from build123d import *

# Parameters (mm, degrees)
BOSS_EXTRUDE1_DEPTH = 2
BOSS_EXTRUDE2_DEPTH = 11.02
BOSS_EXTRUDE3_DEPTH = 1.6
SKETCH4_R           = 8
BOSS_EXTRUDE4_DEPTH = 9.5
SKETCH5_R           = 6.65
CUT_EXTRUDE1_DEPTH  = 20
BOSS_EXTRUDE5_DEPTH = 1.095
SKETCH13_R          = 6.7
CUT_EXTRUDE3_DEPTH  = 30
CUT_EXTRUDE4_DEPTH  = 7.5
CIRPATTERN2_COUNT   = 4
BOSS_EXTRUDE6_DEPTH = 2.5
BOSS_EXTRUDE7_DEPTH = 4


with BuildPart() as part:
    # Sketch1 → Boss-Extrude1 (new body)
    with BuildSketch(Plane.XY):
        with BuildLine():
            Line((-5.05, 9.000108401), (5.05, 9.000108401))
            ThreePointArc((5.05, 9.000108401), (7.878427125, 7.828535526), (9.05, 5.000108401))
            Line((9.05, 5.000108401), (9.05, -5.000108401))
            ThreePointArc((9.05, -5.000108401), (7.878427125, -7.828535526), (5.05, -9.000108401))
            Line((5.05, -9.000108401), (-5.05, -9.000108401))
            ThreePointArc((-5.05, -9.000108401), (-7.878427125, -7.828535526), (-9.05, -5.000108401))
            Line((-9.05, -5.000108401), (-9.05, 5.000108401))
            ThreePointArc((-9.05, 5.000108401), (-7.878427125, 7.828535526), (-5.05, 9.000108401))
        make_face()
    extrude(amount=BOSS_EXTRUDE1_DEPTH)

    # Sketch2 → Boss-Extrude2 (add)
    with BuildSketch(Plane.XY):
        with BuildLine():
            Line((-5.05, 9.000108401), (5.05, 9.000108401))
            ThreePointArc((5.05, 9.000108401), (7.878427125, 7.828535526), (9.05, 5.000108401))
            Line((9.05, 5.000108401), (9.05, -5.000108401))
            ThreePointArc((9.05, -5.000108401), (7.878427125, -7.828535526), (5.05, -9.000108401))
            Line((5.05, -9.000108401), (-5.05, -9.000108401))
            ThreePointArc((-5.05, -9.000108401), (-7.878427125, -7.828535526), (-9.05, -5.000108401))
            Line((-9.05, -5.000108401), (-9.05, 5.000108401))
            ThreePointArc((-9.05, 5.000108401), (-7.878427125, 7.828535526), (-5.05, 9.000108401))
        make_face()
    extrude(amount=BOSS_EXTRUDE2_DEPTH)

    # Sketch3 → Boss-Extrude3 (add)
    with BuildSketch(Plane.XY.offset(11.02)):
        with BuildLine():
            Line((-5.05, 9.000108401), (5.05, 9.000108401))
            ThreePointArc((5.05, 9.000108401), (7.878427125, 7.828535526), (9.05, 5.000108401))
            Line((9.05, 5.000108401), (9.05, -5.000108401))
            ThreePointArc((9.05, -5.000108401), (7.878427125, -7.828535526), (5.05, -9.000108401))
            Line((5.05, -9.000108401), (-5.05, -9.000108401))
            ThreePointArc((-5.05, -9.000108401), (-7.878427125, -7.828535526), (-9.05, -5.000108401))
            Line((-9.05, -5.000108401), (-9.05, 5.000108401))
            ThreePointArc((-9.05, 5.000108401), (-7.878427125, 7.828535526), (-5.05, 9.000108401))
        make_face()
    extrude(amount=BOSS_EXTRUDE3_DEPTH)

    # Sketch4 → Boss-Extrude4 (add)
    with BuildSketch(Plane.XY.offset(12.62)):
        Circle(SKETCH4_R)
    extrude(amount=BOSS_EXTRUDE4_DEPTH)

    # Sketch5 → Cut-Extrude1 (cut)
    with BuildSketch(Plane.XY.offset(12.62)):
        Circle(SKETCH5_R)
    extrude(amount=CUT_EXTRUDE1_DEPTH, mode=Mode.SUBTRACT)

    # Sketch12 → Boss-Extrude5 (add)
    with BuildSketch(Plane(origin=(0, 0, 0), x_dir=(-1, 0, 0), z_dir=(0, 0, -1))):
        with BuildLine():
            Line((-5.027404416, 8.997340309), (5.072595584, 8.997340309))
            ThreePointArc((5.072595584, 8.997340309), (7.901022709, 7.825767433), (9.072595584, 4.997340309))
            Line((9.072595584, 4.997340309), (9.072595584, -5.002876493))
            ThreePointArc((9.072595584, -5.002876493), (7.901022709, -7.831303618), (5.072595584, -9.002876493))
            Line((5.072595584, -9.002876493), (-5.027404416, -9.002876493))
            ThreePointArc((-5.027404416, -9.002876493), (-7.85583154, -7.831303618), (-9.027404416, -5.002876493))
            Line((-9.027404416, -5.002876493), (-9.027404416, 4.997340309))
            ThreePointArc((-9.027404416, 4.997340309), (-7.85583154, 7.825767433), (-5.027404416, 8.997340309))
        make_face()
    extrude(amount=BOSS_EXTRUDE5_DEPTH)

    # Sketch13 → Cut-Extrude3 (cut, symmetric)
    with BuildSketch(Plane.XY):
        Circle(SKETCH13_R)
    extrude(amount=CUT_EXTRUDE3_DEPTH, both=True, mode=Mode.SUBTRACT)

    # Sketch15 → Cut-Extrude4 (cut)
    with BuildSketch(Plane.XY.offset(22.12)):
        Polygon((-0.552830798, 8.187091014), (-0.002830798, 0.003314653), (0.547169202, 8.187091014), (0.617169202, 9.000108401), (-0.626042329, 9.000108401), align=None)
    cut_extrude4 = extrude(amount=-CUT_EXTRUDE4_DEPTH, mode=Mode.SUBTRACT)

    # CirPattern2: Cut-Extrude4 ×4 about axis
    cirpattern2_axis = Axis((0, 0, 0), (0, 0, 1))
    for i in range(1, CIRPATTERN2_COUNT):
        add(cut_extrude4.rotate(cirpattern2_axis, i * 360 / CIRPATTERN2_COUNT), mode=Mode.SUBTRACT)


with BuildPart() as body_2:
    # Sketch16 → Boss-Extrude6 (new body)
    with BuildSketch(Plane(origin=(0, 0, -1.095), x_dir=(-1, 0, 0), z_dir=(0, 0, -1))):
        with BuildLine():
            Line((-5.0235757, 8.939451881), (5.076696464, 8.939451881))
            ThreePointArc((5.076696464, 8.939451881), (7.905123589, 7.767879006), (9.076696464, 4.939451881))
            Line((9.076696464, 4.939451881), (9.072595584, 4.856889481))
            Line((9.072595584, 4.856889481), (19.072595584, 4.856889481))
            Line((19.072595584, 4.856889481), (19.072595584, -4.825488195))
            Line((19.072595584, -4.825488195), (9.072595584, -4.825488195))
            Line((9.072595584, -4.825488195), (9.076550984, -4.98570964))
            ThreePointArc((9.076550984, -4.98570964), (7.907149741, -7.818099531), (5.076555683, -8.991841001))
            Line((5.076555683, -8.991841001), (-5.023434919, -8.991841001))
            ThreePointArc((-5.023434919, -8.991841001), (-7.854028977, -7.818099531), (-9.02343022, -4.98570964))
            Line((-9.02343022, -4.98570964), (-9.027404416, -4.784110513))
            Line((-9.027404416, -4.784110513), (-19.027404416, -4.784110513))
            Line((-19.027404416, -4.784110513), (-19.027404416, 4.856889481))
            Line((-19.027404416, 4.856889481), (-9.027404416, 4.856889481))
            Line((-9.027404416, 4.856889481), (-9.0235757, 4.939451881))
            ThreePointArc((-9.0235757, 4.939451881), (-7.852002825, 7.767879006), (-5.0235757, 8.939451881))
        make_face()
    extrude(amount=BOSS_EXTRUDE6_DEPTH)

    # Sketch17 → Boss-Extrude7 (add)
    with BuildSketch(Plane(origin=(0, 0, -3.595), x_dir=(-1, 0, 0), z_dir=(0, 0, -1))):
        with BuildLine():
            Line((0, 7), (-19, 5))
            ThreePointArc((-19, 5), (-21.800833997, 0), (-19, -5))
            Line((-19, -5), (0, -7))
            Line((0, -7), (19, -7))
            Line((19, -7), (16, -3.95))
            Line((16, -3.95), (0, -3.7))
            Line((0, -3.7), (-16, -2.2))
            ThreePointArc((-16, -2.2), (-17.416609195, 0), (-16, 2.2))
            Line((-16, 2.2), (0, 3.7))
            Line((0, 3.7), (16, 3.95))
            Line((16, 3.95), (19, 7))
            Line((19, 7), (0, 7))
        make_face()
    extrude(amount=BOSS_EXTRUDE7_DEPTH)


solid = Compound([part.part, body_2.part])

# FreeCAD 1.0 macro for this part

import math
import FreeCAD as App
import Part
import Sketcher

V = App.Vector


def add_polygon(sketch, points):
    """Adds a closed chain of lines whose ends are joined by coincident constraints."""
    first, n = sketch.GeometryCount, len(points)
    for a, b in zip(points, points[1:] + points[:1]):
        sketch.addGeometry(Part.LineSegment(App.Vector(*a, 0), App.Vector(*b, 0)), False)
    for i in range(n):
        sketch.addConstraint(Sketcher.Constraint("Coincident", first + i, 2, first + (i + 1) % n, 1))

doc = App.newDocument("Part")
body = doc.addObject("PartDesign::Body", "Body")

# Sketch on XY plane
sketch1 = body.newObject("Sketcher::SketchObject", "Sketch")
sketch1.AttachmentSupport = (doc.getObject("XY_Plane"), [""])
sketch1.MapMode = "FlatFace"
sketch1.addGeometry([
    Part.LineSegment(V(5, 9, 0), V(-5, 9, 0)),  # 0
    Part.ArcOfCircle(Part.Circle(V(-5.1, 5, 0), V(0, 0, 1), 4), math.radians(90), math.radians(180)),  # 1
    Part.LineSegment(V(-9.1, 5, 0), V(-9.1, -5, 0)),  # 2
    Part.ArcOfCircle(Part.Circle(V(-5.1, -5, 0), V(0, 0, 1), 4), math.radians(180), math.radians(270)),  # 3
    Part.LineSegment(V(-5, -9, 0), V(5, -9, 0)),  # 4
    Part.ArcOfCircle(Part.Circle(V(5.1, -5, 0), V(0, 0, 1), 4), math.radians(-90), math.radians(0)),  # 5
    Part.LineSegment(V(9.1, -5, 0), V(9.1, 5, 0)),  # 6
    Part.ArcOfCircle(Part.Circle(V(5.1, 5, 0), V(0, 0, 1), 4), math.radians(0), math.radians(90)),  # 7
], False)
sketch1.addConstraint([
    Sketcher.Constraint("Tangent", 0, 2, 1, 1),
    Sketcher.Constraint("Tangent", 1, 2, 2, 1),
    Sketcher.Constraint("Tangent", 2, 2, 3, 1),
    Sketcher.Constraint("Tangent", 3, 2, 4, 1),
    Sketcher.Constraint("Tangent", 4, 2, 5, 1),
    Sketcher.Constraint("Tangent", 5, 2, 6, 1),
    Sketcher.Constraint("Tangent", 6, 2, 7, 1),
    Sketcher.Constraint("Tangent", 7, 2, 0, 1),
    Sketcher.Constraint("Horizontal", 0),
    Sketcher.Constraint("Vertical", 2),
    Sketcher.Constraint("Horizontal", 4),
    Sketcher.Constraint("Vertical", 6),
    Sketcher.Constraint("Equal", 1, 3),
    Sketcher.Constraint("Equal", 3, 5),
    Sketcher.Constraint("Equal", 5, 7),
    Sketcher.Constraint("Symmetric", 1, 3, 5, 3, -1, 1),
    Sketcher.Constraint("Radius", 1, 4.0),
    Sketcher.Constraint("DistanceX", 0, 2, 0, 1, 10.1),
    Sketcher.Constraint("DistanceY", 2, 2, 2, 1, 10.000217),
])
pad1 = body.newObject("PartDesign::Pad", "Pad")
pad1.Profile = sketch1
pad1.Length = 2

# Sketch on XY plane
sketch2 = body.newObject("Sketcher::SketchObject", "Sketch001")
sketch2.AttachmentSupport = (doc.getObject("XY_Plane"), [""])
sketch2.MapMode = "FlatFace"
sketch2.addGeometry([
    Part.LineSegment(V(5, 9, 0), V(-5, 9, 0)),  # 0
    Part.ArcOfCircle(Part.Circle(V(-5.1, 5, 0), V(0, 0, 1), 4), math.radians(90), math.radians(180)),  # 1
    Part.LineSegment(V(-9.1, 5, 0), V(-9.1, -5, 0)),  # 2
    Part.ArcOfCircle(Part.Circle(V(-5.1, -5, 0), V(0, 0, 1), 4), math.radians(180), math.radians(270)),  # 3
    Part.LineSegment(V(-5, -9, 0), V(5, -9, 0)),  # 4
    Part.ArcOfCircle(Part.Circle(V(5.1, -5, 0), V(0, 0, 1), 4), math.radians(-90), math.radians(0)),  # 5
    Part.LineSegment(V(9.1, -5, 0), V(9.1, 5, 0)),  # 6
    Part.ArcOfCircle(Part.Circle(V(5.1, 5, 0), V(0, 0, 1), 4), math.radians(0), math.radians(90)),  # 7
], False)
sketch2.addConstraint([
    Sketcher.Constraint("Tangent", 0, 2, 1, 1),
    Sketcher.Constraint("Tangent", 1, 2, 2, 1),
    Sketcher.Constraint("Tangent", 2, 2, 3, 1),
    Sketcher.Constraint("Tangent", 3, 2, 4, 1),
    Sketcher.Constraint("Tangent", 4, 2, 5, 1),
    Sketcher.Constraint("Tangent", 5, 2, 6, 1),
    Sketcher.Constraint("Tangent", 6, 2, 7, 1),
    Sketcher.Constraint("Tangent", 7, 2, 0, 1),
    Sketcher.Constraint("Horizontal", 0),
    Sketcher.Constraint("Vertical", 2),
    Sketcher.Constraint("Horizontal", 4),
    Sketcher.Constraint("Vertical", 6),
    Sketcher.Constraint("Equal", 1, 3),
    Sketcher.Constraint("Equal", 3, 5),
    Sketcher.Constraint("Equal", 5, 7),
    Sketcher.Constraint("Symmetric", 1, 3, 5, 3, -1, 1),
    Sketcher.Constraint("Radius", 1, 4.0),
    Sketcher.Constraint("DistanceX", 0, 2, 0, 1, 10.1),
    Sketcher.Constraint("DistanceY", 2, 2, 2, 1, 10.000217),
])
pad2 = body.newObject("PartDesign::Pad", "Pad001")
pad2.Profile = sketch2
pad2.Length = 11.02

# Sketch on XY plane
sketch3 = body.newObject("Sketcher::SketchObject", "Sketch002")
sketch3.AttachmentSupport = (doc.getObject("XY_Plane"), [""])
sketch3.MapMode = "FlatFace"
sketch3.AttachmentOffset = App.Placement(V(0, 0, 11.02), App.Rotation())
sketch3.addGeometry([
    Part.LineSegment(V(5, 9, 0), V(-5, 9, 0)),  # 0
    Part.ArcOfCircle(Part.Circle(V(-5.1, 5, 0), V(0, 0, 1), 4), math.radians(90), math.radians(180)),  # 1
    Part.LineSegment(V(-9.1, 5, 0), V(-9.1, -5, 0)),  # 2
    Part.ArcOfCircle(Part.Circle(V(-5.1, -5, 0), V(0, 0, 1), 4), math.radians(180), math.radians(270)),  # 3
    Part.LineSegment(V(-5, -9, 0), V(5, -9, 0)),  # 4
    Part.ArcOfCircle(Part.Circle(V(5.1, -5, 0), V(0, 0, 1), 4), math.radians(-90), math.radians(0)),  # 5
    Part.LineSegment(V(9.1, -5, 0), V(9.1, 5, 0)),  # 6
    Part.ArcOfCircle(Part.Circle(V(5.1, 5, 0), V(0, 0, 1), 4), math.radians(0), math.radians(90)),  # 7
], False)
sketch3.addConstraint([
    Sketcher.Constraint("Tangent", 0, 2, 1, 1),
    Sketcher.Constraint("Tangent", 1, 2, 2, 1),
    Sketcher.Constraint("Tangent", 2, 2, 3, 1),
    Sketcher.Constraint("Tangent", 3, 2, 4, 1),
    Sketcher.Constraint("Tangent", 4, 2, 5, 1),
    Sketcher.Constraint("Tangent", 5, 2, 6, 1),
    Sketcher.Constraint("Tangent", 6, 2, 7, 1),
    Sketcher.Constraint("Tangent", 7, 2, 0, 1),
    Sketcher.Constraint("Horizontal", 0),
    Sketcher.Constraint("Vertical", 2),
    Sketcher.Constraint("Horizontal", 4),
    Sketcher.Constraint("Vertical", 6),
    Sketcher.Constraint("Equal", 1, 3),
    Sketcher.Constraint("Equal", 3, 5),
    Sketcher.Constraint("Equal", 5, 7),
    Sketcher.Constraint("Symmetric", 1, 3, 5, 3, -1, 1),
    Sketcher.Constraint("Radius", 1, 4.0),
    Sketcher.Constraint("DistanceX", 0, 2, 0, 1, 10.1),
    Sketcher.Constraint("DistanceY", 2, 2, 2, 1, 10.000217),
])
pad3 = body.newObject("PartDesign::Pad", "Pad002")
pad3.Profile = sketch3
pad3.Length = 1.6

# Sketch on XY plane
sketch4 = body.newObject("Sketcher::SketchObject", "Sketch003")
sketch4.AttachmentSupport = (doc.getObject("XY_Plane"), [""])
sketch4.MapMode = "FlatFace"
sketch4.AttachmentOffset = App.Placement(V(0, 0, 12.62), App.Rotation())
sketch4.addGeometry(Part.Circle(V(0, 0, 0), V(0, 0, 1), 8), False)
sketch4.addConstraint([
    Sketcher.Constraint("Coincident", 0, 3, -1, 1),
    Sketcher.Constraint("Diameter", 0, 16.0),
])
pad4 = body.newObject("PartDesign::Pad", "Pad003")
pad4.Profile = sketch4
pad4.Length = 9.5

# Sketch on XY plane
sketch5 = body.newObject("Sketcher::SketchObject", "Sketch004")
sketch5.AttachmentSupport = (doc.getObject("XY_Plane"), [""])
sketch5.MapMode = "FlatFace"
sketch5.AttachmentOffset = App.Placement(V(0, 0, 12.62), App.Rotation())
sketch5.addGeometry(Part.Circle(V(0, 0, 0), V(0, 0, 1), 7), False)
sketch5.addConstraint([
    Sketcher.Constraint("Coincident", 0, 3, -1, 1),
    Sketcher.Constraint("Diameter", 0, 13.3),
])
pocket1 = body.newObject("PartDesign::Pocket", "Pocket")
pocket1.Profile = sketch5
pocket1.Length = 20
pocket1.Reversed = True

# Sketch on XY plane
sketch6 = body.newObject("Sketcher::SketchObject", "Sketch005")
sketch6.AttachmentSupport = (doc.getObject("XY_Plane"), [""])
sketch6.MapMode = "FlatFace"
sketch6.addGeometry([
    Part.LineSegment(V(-5.1, 9, 0), V(5, 9, 0)),  # 0
    Part.ArcOfCircle(Part.Circle(V(5, 5, 0), V(0, 0, 1), 4), math.radians(0), math.radians(90)),  # 1
    Part.LineSegment(V(9, 5, 0), V(9, -5, 0)),  # 2
    Part.ArcOfCircle(Part.Circle(V(5, -5, 0), V(0, 0, 1), 4), math.radians(-90), math.radians(0)),  # 3
    Part.LineSegment(V(5, -9, 0), V(-5.1, -9, 0)),  # 4
    Part.ArcOfCircle(Part.Circle(V(-5.1, -5, 0), V(0, 0, 1), 4), math.radians(180), math.radians(270)),  # 5
    Part.LineSegment(V(-9.1, -5, 0), V(-9.1, 5, 0)),  # 6
    Part.ArcOfCircle(Part.Circle(V(-5.1, 5, 0), V(0, 0, 1), 4), math.radians(90), math.radians(180)),  # 7
], False)
sketch6.addConstraint([
    Sketcher.Constraint("Tangent", 0, 2, 1, 2),
    Sketcher.Constraint("Tangent", 1, 1, 2, 1),
    Sketcher.Constraint("Tangent", 2, 2, 3, 2),
    Sketcher.Constraint("Tangent", 3, 1, 4, 1),
    Sketcher.Constraint("Tangent", 4, 2, 5, 2),
    Sketcher.Constraint("Tangent", 5, 1, 6, 1),
    Sketcher.Constraint("Tangent", 6, 2, 7, 2),
    Sketcher.Constraint("Tangent", 7, 1, 0, 1),
    Sketcher.Constraint("Horizontal", 0),
    Sketcher.Constraint("Vertical", 2),
    Sketcher.Constraint("Horizontal", 4),
    Sketcher.Constraint("Vertical", 6),
    Sketcher.Constraint("Equal", 1, 3),
    Sketcher.Constraint("Equal", 3, 5),
    Sketcher.Constraint("Equal", 5, 7),
    Sketcher.Constraint("Radius", 1, 4.0),
    Sketcher.Constraint("DistanceX", 0, 1, 0, 2, 10.1),
    Sketcher.Constraint("DistanceY", 2, 2, 2, 1, 10.000217),
    Sketcher.Constraint("DistanceY", -1, 1, 1, 3, 4.99734),
    Sketcher.Constraint("DistanceX", -1, 1, 1, 3, 5.027404),
])
pad5 = body.newObject("PartDesign::Pad", "Pad004")
pad5.Profile = sketch6
pad5.Length = 1.095
pad5.Reversed = True

# Sketch on XY plane
sketch7 = body.newObject("Sketcher::SketchObject", "Sketch006")
sketch7.AttachmentSupport = (doc.getObject("XY_Plane"), [""])
sketch7.MapMode = "FlatFace"
sketch7.addGeometry(Part.Circle(V(0, 0, 0), V(0, 0, 1), 7), False)
sketch7.addConstraint([
    Sketcher.Constraint("Coincident", 0, 3, -1, 1),
    Sketcher.Constraint("Diameter", 0, 13.4),
])
pocket2 = body.newObject("PartDesign::Pocket", "Pocket001")
pocket2.Profile = sketch7
pocket2.Length = 60
pocket2.Midplane = True

# Sketch on XY plane
sketch8 = body.newObject("Sketcher::SketchObject", "Sketch007")
sketch8.AttachmentSupport = (doc.getObject("XY_Plane"), [""])
sketch8.MapMode = "FlatFace"
sketch8.AttachmentOffset = App.Placement(V(0, 0, 22.12), App.Rotation())
add_polygon(sketch8, [(-0.6, 8.2), (0, 0), (0.5, 8.2), (0.6, 9), (-0.6, 9)])  # lines 0-4
sketch8.addConstraint([
    Sketcher.Constraint("Horizontal", 3),
    Sketcher.Constraint("Horizontal", 1, 2, 4, 2),
    Sketcher.Constraint("Equal", 0, 1),
    Sketcher.Constraint("DistanceX", 4, 2, 1, 2, 1.1),
    Sketcher.Constraint("DistanceX", 1, 2, 2, 2, 0.07),
    Sketcher.Constraint("DistanceX", 3, 2, 3, 1, 1.243212),
    Sketcher.Constraint("DistanceX", 0, 2, -1, 1, 0.002831),
    Sketcher.Constraint("DistanceY", -1, 1, 1, 2, 8.187091),
    Sketcher.Constraint("DistanceY", -1, 1, 2, 2, 9.000108),
    Sketcher.Constraint("Distance", 0, 8.202237),
])
pocket3 = body.newObject("PartDesign::Pocket", "Pocket002")
pocket3.Profile = sketch8
pocket3.Length = 7.5
doc.recompute()

polarpattern = body.newObject("PartDesign::PolarPattern", "PolarPattern")
polarpattern.Originals = [pocket3]
polarpattern.Axis = (doc.getObject("Z_Axis"), [""])
polarpattern.Angle = 360
polarpattern.Occurrences = 4
body.Tip = polarpattern
body2 = doc.addObject("PartDesign::Body", "Body001")

# Sketch on XY plane
sketch9 = body2.newObject("Sketcher::SketchObject", "Sketch008")
sketch9.AttachmentSupport = (doc.getObject("XY_Plane001"), [""])
sketch9.MapMode = "FlatFace"
sketch9.AttachmentOffset = App.Placement(V(0, 0, -1.095), App.Rotation())
sketch9.addGeometry([
    Part.LineSegment(V(-5.08, 8.94, 0), V(5.02, 8.94, 0)),  # 0
    Part.ArcOfCircle(Part.Circle(V(5.02, 4.94, 0), V(0, 0, 1), 4), math.radians(0), math.radians(90)),  # 1
    Part.LineSegment(V(9.02, 4.94, 0), V(9.03, 4.86, 0)),  # 2
    Part.LineSegment(V(9.03, 4.86, 0), V(19.03, 4.86, 0)),  # 3
    Part.LineSegment(V(19.03, 4.86, 0), V(19.03, -4.78, 0)),  # 4
    Part.LineSegment(V(19.03, -4.78, 0), V(9.03, -4.78, 0)),  # 5
    Part.LineSegment(V(9.03, -4.78, 0), V(9.02, -4.99, 0)),  # 6
    Part.ArcOfCircle(Part.Circle(V(5.02, -4.99, 0), V(0, 0, 1), 4), math.radians(-90), math.radians(0)),  # 7
    Part.LineSegment(V(5.02, -8.99, 0), V(-5.08, -8.99, 0)),  # 8
    Part.ArcOfCircle(Part.Circle(V(-5.08, -4.99, 0), V(0, 0, 1), 4), math.radians(180), math.radians(270)),  # 9
    Part.LineSegment(V(-9.08, -4.99, 0), V(-9.07, -4.83, 0)),  # 10
    Part.LineSegment(V(-9.07, -4.83, 0), V(-19.07, -4.83, 0)),  # 11
    Part.LineSegment(V(-19.07, -4.83, 0), V(-19.07, 4.86, 0)),  # 12
    Part.LineSegment(V(-19.07, 4.86, 0), V(-9.07, 4.86, 0)),  # 13
    Part.LineSegment(V(-9.07, 4.86, 0), V(-9.08, 4.94, 0)),  # 14
    Part.ArcOfCircle(Part.Circle(V(-5.08, 4.94, 0), V(0, 0, 1), 4), math.radians(90), math.radians(180)),  # 15
], False)
sketch9.addConstraint([
    Sketcher.Constraint("Tangent", 0, 2, 1, 2),
    Sketcher.Constraint("Coincident", 1, 1, 2, 1),
    Sketcher.Constraint("Coincident", 2, 2, 3, 1),
    Sketcher.Constraint("Coincident", 3, 2, 4, 1),
    Sketcher.Constraint("Coincident", 4, 2, 5, 1),
    Sketcher.Constraint("Coincident", 5, 2, 6, 1),
    Sketcher.Constraint("Coincident", 6, 2, 7, 2),
    Sketcher.Constraint("Tangent", 7, 1, 8, 1),
    Sketcher.Constraint("Tangent", 8, 2, 9, 2),
    Sketcher.Constraint("Coincident", 9, 1, 10, 1),
    Sketcher.Constraint("Coincident", 10, 2, 11, 1),
    Sketcher.Constraint("Coincident", 11, 2, 12, 1),
    Sketcher.Constraint("Coincident", 12, 2, 13, 1),
    Sketcher.Constraint("Coincident", 13, 2, 14, 1),
    Sketcher.Constraint("Coincident", 14, 2, 15, 2),
    Sketcher.Constraint("Tangent", 15, 1, 0, 1),
    Sketcher.Constraint("Horizontal", 0),
    Sketcher.Constraint("Horizontal", 3),
    Sketcher.Constraint("Vertical", 4),
    Sketcher.Constraint("Horizontal", 5),
    Sketcher.Constraint("Horizontal", 8),
    Sketcher.Constraint("Horizontal", 11),
    Sketcher.Constraint("Vertical", 12),
    Sketcher.Constraint("Horizontal", 13),
    Sketcher.Constraint("Equal", 1, 7),
    Sketcher.Constraint("Equal", 7, 9),
    Sketcher.Constraint("Equal", 9, 15),
    Sketcher.Constraint("Horizontal", 15, 3, 1, 1),
    Sketcher.Constraint("Horizontal", 6, 2, 9, 1),
    Sketcher.Constraint("Horizontal", 3, 2, 12, 2),
    Sketcher.Constraint("Horizontal", 1, 1, 14, 2),
    Sketcher.Constraint("Vertical", 2, 2, 5, 2),
    Sketcher.Constraint("Vertical", 10, 2, 13, 2),
    Sketcher.Constraint("Equal", 5, 11),
    Sketcher.Constraint("Radius", 1, 4.0),
    Sketcher.Constraint("DistanceX", 3, 1, 3, 2, 10.0),
    Sketcher.Constraint("DistanceY", 4, 2, 4, 1, 9.641),
    Sketcher.Constraint("DistanceX", 8, 2, 8, 1, 10.099991),
    Sketcher.Constraint("DistanceX", 15, 3, 2, 2, 14.104101),
    Sketcher.Constraint("DistanceY", 6, 2, 5, 2, 0.201599),
    Sketcher.Constraint("DistanceX", 10, 2, 15, 3, 3.995899),
    Sketcher.Constraint("Distance", 2, 0.082651),
    Sketcher.Constraint("Distance", 6, 0.201638),
    Sketcher.Constraint("Distance", 10, 0.16027),
    Sketcher.Constraint("DistanceX", 0, 1, 0, 2, 10.100272),
    Sketcher.Constraint("DistanceY", -1, 1, 1, 3, 4.939452),
    Sketcher.Constraint("DistanceY", 7, 3, -1, 1, 4.991841),
    Sketcher.Constraint("DistanceX", -1, 1, 6, 2, 9.02343),
])
pad6 = body2.newObject("PartDesign::Pad", "Pad005")
pad6.Profile = sketch9
pad6.Length = 2.5
pad6.Reversed = True

# Sketch on XY plane
sketch10 = body2.newObject("Sketcher::SketchObject", "Sketch009")
sketch10.AttachmentSupport = (doc.getObject("XY_Plane001"), [""])
sketch10.MapMode = "FlatFace"
sketch10.AttachmentOffset = App.Placement(V(0, 0, -3.595), App.Rotation())
sketch10.addGeometry([
    Part.LineSegment(V(0, 7, 0), V(19, 5, 0)),  # 0
    Part.ArcOfCircle(Part.Circle(V(15.9, 0, 0), V(0, 0, 1), 5.9), math.radians(-59), math.radians(59)),  # 1
    Part.LineSegment(V(19, -5, 0), V(0, -7, 0)),  # 2
    Part.LineSegment(V(0, -7, 0), V(-19, -7, 0)),  # 3
    Part.LineSegment(V(-19, -7, 0), V(-16, -4, 0)),  # 4
    Part.LineSegment(V(-16, -4, 0), V(0, -3.7, 0)),  # 5
    Part.LineSegment(V(0, -3.7, 0), V(16, -2.2, 0)),  # 6
    Part.ArcOfCircle(Part.Circle(V(15, 0, 0), V(0, 0, 1), 2.4), math.radians(-66), math.radians(66)),  # 7
    Part.LineSegment(V(16, 2.2, 0), V(0, 3.7, 0)),  # 8
    Part.LineSegment(V(0, 3.7, 0), V(-16, 4, 0)),  # 9
    Part.LineSegment(V(-16, 4, 0), V(-19, 7, 0)),  # 10
    Part.LineSegment(V(-19, 7, 0), V(0, 7, 0)),  # 11
], False)
sketch10.addConstraint([
    Sketcher.Constraint("Coincident", 0, 2, 1, 2),
    Sketcher.Constraint("Coincident", 1, 1, 2, 1),
    Sketcher.Constraint("Coincident", 2, 2, 3, 1),
    Sketcher.Constraint("Coincident", 3, 2, 4, 1),
    Sketcher.Constraint("Coincident", 4, 2, 5, 1),
    Sketcher.Constraint("Coincident", 5, 2, 6, 1),
    Sketcher.Constraint("Coincident", 6, 2, 7, 1),
    Sketcher.Constraint("Coincident", 7, 2, 8, 1),
    Sketcher.Constraint("Coincident", 8, 2, 9, 1),
    Sketcher.Constraint("Coincident", 9, 2, 10, 1),
    Sketcher.Constraint("Coincident", 10, 2, 11, 1),
    Sketcher.Constraint("Coincident", 11, 2, 0, 1),
    Sketcher.Constraint("Horizontal", 3),
    Sketcher.Constraint("Horizontal", 11),
    Sketcher.Constraint("Symmetric", 5, 2, 8, 2, -1, 1),
    Sketcher.Constraint("Symmetric", 2, 2, 11, 2, -1, 1),
    Sketcher.Constraint("Symmetric", 0, 2, 1, 1, -1),
    Sketcher.Constraint("Symmetric", 6, 2, 7, 2, -1),
    Sketcher.Constraint("Symmetric", 4, 2, 9, 2, -1),
    Sketcher.Constraint("PointOnObject", 2, 2, -2),
    Sketcher.Constraint("PointOnObject", 5, 2, -2),
    Sketcher.Constraint("Vertical", 3, 2, 10, 2),
    Sketcher.Constraint("DistanceX", 3, 2, 3, 1, 19.0),
    Sketcher.Constraint("DistanceX", -1, 1, 7, 3, 15.0),
    Sketcher.Constraint("DistanceX", -1, 1, 0, 2, 19.0),
    Sketcher.Constraint("DistanceY", -1, 1, 0, 2, 5.0),
    Sketcher.Constraint("DistanceY", 2, 2, -1, 1, 7.0),
    Sketcher.Constraint("DistanceX", 4, 2, -1, 1, 16.0),
    Sketcher.Constraint("DistanceX", -1, 1, 6, 2, 16.0),
    Sketcher.Constraint("DistanceY", 5, 2, -1, 1, 3.7),
    Sketcher.Constraint("DistanceY", 6, 2, -1, 1, 2.2),
    Sketcher.Constraint("DistanceY", 4, 2, 9, 2, 7.9),
    Sketcher.Constraint("Radius", 1, 5.863373),
])
pad7 = body2.newObject("PartDesign::Pad", "Pad006")
pad7.Profile = sketch10
pad7.Length = 4
pad7.Reversed = True

doc.recompute()
